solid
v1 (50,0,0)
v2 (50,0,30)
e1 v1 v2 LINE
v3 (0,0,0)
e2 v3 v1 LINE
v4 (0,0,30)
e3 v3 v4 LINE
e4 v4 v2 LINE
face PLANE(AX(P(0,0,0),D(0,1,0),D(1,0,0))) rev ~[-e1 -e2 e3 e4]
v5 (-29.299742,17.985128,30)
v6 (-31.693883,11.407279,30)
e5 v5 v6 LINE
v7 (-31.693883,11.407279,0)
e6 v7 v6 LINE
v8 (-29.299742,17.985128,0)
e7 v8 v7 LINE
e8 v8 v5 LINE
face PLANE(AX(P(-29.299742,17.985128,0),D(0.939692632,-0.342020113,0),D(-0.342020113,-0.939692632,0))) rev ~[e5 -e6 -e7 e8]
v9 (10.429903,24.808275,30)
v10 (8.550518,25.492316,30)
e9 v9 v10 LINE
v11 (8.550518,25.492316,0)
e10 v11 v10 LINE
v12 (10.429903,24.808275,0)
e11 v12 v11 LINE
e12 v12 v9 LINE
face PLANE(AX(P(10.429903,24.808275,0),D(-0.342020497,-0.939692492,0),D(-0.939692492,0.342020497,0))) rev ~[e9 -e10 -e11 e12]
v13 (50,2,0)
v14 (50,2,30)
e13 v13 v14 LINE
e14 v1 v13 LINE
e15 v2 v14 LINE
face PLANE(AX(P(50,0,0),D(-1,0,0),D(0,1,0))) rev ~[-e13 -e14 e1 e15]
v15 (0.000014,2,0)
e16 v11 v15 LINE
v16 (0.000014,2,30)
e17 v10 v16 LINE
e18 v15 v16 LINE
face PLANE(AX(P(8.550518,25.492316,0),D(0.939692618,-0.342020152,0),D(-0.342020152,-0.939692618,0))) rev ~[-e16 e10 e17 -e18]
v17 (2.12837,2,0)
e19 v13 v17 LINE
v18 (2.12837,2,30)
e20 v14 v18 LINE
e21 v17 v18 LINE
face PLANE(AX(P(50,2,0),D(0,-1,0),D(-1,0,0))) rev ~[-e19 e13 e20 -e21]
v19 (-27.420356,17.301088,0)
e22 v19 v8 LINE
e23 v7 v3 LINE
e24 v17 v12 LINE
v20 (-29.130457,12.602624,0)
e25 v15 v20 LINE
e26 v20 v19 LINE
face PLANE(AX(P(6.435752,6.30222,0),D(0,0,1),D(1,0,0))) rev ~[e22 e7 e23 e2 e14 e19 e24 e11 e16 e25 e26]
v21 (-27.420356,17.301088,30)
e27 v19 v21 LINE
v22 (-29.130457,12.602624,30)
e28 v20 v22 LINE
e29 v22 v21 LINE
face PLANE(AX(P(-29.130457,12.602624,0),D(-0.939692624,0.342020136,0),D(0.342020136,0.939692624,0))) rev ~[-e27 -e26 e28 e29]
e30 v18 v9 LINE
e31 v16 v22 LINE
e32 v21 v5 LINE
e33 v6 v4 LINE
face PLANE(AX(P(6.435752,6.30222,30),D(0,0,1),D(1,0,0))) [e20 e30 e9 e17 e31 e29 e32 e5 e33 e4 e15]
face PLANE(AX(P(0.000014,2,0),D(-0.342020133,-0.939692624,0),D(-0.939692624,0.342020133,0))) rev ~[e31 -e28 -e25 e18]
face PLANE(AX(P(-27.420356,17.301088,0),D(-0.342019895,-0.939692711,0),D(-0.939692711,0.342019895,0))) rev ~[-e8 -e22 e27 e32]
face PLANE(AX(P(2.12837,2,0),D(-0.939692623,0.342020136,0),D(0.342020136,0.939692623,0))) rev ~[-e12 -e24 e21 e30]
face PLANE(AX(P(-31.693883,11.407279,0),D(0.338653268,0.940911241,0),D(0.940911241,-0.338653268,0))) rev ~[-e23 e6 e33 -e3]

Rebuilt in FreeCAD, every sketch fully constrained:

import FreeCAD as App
import Part
import Sketcher
Q = App.Units.Quantity


def add_polygon(sketch, points):
    """Adds a closed chain of lines whose ends are joined by coincident constraints."""
    first, n = sketch.GeometryCount, len(points)
    for a, b in zip(points, points[1:] + points[:1]):
        sketch.addGeometry(Part.LineSegment(App.Vector(*a, 0), App.Vector(*b, 0)), False)
    for i in range(n):
        sketch.addConstraint(Sketcher.Constraint("Coincident", first + i, 2, first + (i + 1) % n, 1))

doc = App.newDocument("Part")
body = doc.addObject("PartDesign::Body", "Body")

# Sketch on XY plane
sketch1 = body.newObject("Sketcher::SketchObject", "Sketch")
sketch1.AttachmentSupport = (doc.getObject("XY_Plane"), [""])
sketch1.MapMode = "FlatFace"
add_polygon(sketch1, [(0, 0), (50, 0), (50, 2), (2.1, 2), (10.4, 24.8), (8.6, 25.5), (0, 2), (-29.1, 12.6), (-27.4, 17.3), (-29.3, 18), (-31.7, 11.4)])  # lines 0-10
sketch1.addConstraint(Sketcher.Constraint("Horizontal", 0))
sketch1.addConstraint(Sketcher.Constraint("Vertical", 1))
sketch1.addConstraint(Sketcher.Constraint("Horizontal", 2))
sketch1.addConstraint(Sketcher.Constraint("Coincident", 10, 2, -1, 1))
sketch1.addConstraint(Sketcher.Constraint("Perpendicular", 3, 4))
sketch1.addConstraint(Sketcher.Constraint("Perpendicular", 4, 5))
sketch1.addConstraint(Sketcher.Constraint("Perpendicular", 5, 6))
sketch1.addConstraint(Sketcher.Constraint("Perpendicular", 6, 7))
sketch1.addConstraint(Sketcher.Constraint("Perpendicular", 7, 8))
sketch1.addConstraint(Sketcher.Constraint("Perpendicular", 8, 9))
sketch1.addConstraint(Sketcher.Constraint("Horizontal", 2, 2, 5, 2))
sketch1.addConstraint(Sketcher.Constraint("Equal", 4, 8))
sketch1.addConstraint(Sketcher.Constraint("DistanceX", 0, 1, 0, 2, 50.0))
sketch1.addConstraint(Sketcher.Constraint("DistanceY", 1, 1, 1, 2, 2.0))
sketch1.addConstraint(Sketcher.Constraint("Angle", 3, Q("70 deg")))
sketch1.addConstraint(Sketcher.Constraint("Distance", 4, 2.0))
sketch1.addConstraint(Sketcher.Constraint("Distance", 5, 25.000001))
sketch1.addConstraint(Sketcher.Constraint("Distance", 6, 31.0))
sketch1.addConstraint(Sketcher.Constraint("Distance", 7, 5.000001))
sketch1.addConstraint(Sketcher.Constraint("Distance", 9, 7.000001))
sketch1.addConstraint(Sketcher.Constraint("DistanceX", 2, 2, 2, 1, 47.87163))
pad1 = body.newObject("PartDesign::Pad", "Pad")
pad1.Profile = sketch1
pad1.Length = 30

doc.recompute()
